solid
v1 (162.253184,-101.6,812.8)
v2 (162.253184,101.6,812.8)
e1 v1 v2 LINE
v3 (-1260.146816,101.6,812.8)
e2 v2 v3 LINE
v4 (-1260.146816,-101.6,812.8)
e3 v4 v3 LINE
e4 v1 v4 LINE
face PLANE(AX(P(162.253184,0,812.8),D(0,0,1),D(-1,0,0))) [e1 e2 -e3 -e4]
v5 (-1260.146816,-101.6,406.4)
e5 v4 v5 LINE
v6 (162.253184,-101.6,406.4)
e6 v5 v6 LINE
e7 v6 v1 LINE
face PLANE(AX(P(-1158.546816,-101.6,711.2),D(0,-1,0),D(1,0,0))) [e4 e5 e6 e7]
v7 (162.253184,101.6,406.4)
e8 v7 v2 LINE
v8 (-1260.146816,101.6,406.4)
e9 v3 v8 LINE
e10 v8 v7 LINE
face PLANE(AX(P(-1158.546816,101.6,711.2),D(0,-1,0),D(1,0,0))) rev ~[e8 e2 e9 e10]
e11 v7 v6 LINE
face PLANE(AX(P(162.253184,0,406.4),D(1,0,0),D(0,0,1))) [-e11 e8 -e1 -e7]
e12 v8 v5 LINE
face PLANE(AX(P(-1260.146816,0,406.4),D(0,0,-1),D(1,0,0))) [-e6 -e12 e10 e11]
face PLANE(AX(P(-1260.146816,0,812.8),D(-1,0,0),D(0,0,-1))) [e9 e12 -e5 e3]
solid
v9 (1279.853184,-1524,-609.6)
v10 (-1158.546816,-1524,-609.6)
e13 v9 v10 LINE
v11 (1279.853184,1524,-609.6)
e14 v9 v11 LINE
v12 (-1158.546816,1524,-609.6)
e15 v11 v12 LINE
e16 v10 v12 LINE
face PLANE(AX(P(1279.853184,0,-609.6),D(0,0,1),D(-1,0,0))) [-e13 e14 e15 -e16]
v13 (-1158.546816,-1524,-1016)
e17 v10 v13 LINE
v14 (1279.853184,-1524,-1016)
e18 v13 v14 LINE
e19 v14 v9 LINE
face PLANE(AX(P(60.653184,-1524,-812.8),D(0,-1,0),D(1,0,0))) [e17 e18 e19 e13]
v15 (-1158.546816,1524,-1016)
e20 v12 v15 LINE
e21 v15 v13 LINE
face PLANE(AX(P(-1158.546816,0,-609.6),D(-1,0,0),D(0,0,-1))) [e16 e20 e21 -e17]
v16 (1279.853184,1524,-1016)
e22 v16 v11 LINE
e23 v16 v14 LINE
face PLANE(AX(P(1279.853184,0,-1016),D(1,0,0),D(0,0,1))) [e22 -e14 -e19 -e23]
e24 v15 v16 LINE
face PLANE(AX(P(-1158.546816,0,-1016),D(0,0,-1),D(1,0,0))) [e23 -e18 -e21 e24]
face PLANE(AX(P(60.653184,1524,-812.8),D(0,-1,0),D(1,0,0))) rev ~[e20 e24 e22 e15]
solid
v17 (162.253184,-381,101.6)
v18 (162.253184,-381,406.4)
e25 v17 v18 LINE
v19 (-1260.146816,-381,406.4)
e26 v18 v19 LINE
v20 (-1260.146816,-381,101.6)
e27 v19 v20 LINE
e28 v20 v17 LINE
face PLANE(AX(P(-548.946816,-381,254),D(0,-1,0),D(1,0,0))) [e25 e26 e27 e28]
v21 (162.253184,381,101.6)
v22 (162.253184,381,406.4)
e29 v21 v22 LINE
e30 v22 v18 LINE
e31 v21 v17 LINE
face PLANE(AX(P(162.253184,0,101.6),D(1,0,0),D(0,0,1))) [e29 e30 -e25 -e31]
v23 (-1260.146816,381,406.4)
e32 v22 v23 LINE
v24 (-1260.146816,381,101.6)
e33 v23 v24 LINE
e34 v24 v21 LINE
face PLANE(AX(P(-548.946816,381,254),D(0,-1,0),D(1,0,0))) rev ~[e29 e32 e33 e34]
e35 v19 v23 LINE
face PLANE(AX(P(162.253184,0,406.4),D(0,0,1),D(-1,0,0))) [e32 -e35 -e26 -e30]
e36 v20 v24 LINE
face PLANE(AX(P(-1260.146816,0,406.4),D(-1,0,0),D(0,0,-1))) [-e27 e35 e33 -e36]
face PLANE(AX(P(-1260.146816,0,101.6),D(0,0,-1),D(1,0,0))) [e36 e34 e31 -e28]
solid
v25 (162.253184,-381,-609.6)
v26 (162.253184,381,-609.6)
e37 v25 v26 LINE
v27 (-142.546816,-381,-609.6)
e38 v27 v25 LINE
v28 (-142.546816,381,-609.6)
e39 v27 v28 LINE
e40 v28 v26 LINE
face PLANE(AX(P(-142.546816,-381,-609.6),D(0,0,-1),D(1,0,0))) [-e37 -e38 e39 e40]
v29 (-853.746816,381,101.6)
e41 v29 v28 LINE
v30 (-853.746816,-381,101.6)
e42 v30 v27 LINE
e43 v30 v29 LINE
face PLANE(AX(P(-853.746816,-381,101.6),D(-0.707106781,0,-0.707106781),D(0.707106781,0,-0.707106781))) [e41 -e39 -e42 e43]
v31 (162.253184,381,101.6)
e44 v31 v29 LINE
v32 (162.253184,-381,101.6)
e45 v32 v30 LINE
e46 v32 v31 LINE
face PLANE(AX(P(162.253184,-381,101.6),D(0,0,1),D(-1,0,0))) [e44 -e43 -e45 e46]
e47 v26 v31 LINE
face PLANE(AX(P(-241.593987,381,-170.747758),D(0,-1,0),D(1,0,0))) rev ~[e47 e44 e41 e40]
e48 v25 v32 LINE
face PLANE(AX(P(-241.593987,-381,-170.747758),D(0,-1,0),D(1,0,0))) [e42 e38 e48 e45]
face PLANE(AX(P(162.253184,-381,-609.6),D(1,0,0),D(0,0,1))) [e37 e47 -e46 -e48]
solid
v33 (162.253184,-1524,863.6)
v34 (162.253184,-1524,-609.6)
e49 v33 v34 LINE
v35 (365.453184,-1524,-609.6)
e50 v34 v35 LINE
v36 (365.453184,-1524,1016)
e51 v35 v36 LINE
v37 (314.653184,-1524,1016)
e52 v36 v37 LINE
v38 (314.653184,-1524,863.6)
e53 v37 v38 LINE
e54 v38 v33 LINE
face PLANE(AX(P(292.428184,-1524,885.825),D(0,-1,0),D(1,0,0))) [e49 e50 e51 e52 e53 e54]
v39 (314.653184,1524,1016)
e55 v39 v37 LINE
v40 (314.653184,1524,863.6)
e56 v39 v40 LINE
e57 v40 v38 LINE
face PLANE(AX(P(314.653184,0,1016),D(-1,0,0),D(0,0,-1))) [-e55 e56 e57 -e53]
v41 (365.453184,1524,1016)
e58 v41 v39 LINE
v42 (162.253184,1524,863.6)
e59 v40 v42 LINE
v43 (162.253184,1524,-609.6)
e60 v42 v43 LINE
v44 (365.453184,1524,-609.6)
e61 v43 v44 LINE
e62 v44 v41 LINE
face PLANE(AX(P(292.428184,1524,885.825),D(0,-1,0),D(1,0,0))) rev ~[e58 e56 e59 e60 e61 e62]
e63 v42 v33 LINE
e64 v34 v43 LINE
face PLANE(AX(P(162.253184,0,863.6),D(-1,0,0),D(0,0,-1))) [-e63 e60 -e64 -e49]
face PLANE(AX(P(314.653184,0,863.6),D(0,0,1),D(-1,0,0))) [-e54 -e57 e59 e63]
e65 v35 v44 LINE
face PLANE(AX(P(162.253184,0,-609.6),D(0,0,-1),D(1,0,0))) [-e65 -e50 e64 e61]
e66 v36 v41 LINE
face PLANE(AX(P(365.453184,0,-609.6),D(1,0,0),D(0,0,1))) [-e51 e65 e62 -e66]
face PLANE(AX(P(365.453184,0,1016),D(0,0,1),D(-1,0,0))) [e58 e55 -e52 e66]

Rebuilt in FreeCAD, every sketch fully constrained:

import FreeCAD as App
import Part
import Sketcher
Q = App.Units.Quantity


def add_polygon(sketch, points):
    """Adds a closed chain of lines whose ends are joined by coincident constraints."""
    first, n = sketch.GeometryCount, len(points)
    for a, b in zip(points, points[1:] + points[:1]):
        sketch.addGeometry(Part.LineSegment(App.Vector(*a, 0), App.Vector(*b, 0)), False)
    for i in range(n):
        sketch.addConstraint(Sketcher.Constraint("Coincident", first + i, 2, first + (i + 1) % n, 1))

doc = App.newDocument("Part")
body = doc.addObject("PartDesign::Body", "Body")

# Sketch on XZ plane
sketch1 = doc.addObject("Sketcher::SketchObject", "Sketch")
body.addObject(sketch1)
sketch1.AttachmentSupport = (doc.XZ_Plane, [""])
sketch1.MapMode = "FlatFace"
add_polygon(sketch1, [(-1260, 102), (162, 102), (162, 406), (-1260, 406)])  # lines 0-3
sketch1.addConstraint([
    Sketcher.Constraint("Horizontal", 0),
    Sketcher.Constraint("Vertical", 1),
    Sketcher.Constraint("Horizontal", 2),
    Sketcher.Constraint("Vertical", 3),
    Sketcher.Constraint("DistanceX", 0, 1, 0, 2, Q("56 in")),
    Sketcher.Constraint("DistanceY", 1, 1, 1, 2, Q("12 in")),
    Sketcher.Constraint("DistanceY", -1, 1, 0, 2, Q("4 in")),
    Sketcher.Constraint("DistanceX", -1, 1, 0, 2, 162.253184),
])
pad1 = doc.addObject("PartDesign::Pad", "Pad")
body.addObject(pad1)
pad1.Profile = sketch1
pad1.Length = Q("30 in")
pad1.Midplane = True
body2 = doc.addObject("PartDesign::Body", "Body001")

# Sketch on XZ plane
sketch2 = doc.addObject("Sketcher::SketchObject", "Sketch001")
body2.addObject(sketch2)
sketch2.AttachmentSupport = (doc.getObject("XZ_Plane001"), [""])
sketch2.MapMode = "FlatFace"
add_polygon(sketch2, [(-1260, 813), (-1260, 406), (162, 406), (162, 813)])  # lines 0-3
sketch2.addConstraint([
    Sketcher.Constraint("Vertical", 0),
    Sketcher.Constraint("Horizontal", 1),
    Sketcher.Constraint("Vertical", 2),
    Sketcher.Constraint("Horizontal", 3),
    Sketcher.Constraint("DistanceX", 1, 1, 1, 2, Q("56 in")),
    Sketcher.Constraint("DistanceY", 0, 2, 0, 1, Q("16 in")),
    Sketcher.Constraint("DistanceY", -1, 1, 0, 2, Q("16 in")),
    Sketcher.Constraint("DistanceX", 0, 2, -1, 1, 1260.146816),
])
pad2 = doc.addObject("PartDesign::Pad", "Pad001")
body2.addObject(pad2)
pad2.Profile = sketch2
pad2.Length = Q("8 in")
pad2.Midplane = True
body3 = doc.addObject("PartDesign::Body", "Body002")

# Sketch on XZ plane
sketch3 = doc.addObject("Sketcher::SketchObject", "Sketch002")
body3.addObject(sketch3)
sketch3.AttachmentSupport = (doc.getObject("XZ_Plane002"), [""])
sketch3.MapMode = "FlatFace"
sketch3.AttachmentOffset = App.Placement(App.Vector(0, 0, 15 * 25.4), App.Rotation())
add_polygon(sketch3, [(162, -610), (162, 102), (-854, 102), (-143, -610)])  # lines 0-3
sketch3.addConstraint([
    Sketcher.Constraint("Vertical", 0),
    Sketcher.Constraint("Horizontal", 1),
    Sketcher.Constraint("Horizontal", 3),
    Sketcher.Constraint("DistanceX", 1, 2, 1, 1, Q("40 in")),
    Sketcher.Constraint("DistanceX", 3, 1, 3, 2, Q("12 in")),
    Sketcher.Constraint("DistanceY", 0, 1, 0, 2, Q("28 in")),
    Sketcher.Constraint("DistanceY", -1, 1, 0, 2, Q("4 in")),
    Sketcher.Constraint("DistanceX", -1, 1, 0, 2, 162.253184),
])
pad3 = doc.addObject("PartDesign::Pad", "Pad002")
body3.addObject(pad3)
pad3.Profile = sketch3
pad3.Length = Q("30 in")
pad3.Reversed = True
body4 = doc.addObject("PartDesign::Body", "Body003")

# Sketch on XZ plane
sketch4 = doc.addObject("Sketcher::SketchObject", "Sketch003")
body4.addObject(sketch4)
sketch4.AttachmentSupport = (doc.getObject("XZ_Plane003"), [""])
sketch4.MapMode = "FlatFace"
add_polygon(sketch4, [(365, 1016), (315, 1016), (315, 864), (162, 864), (162, -610), (365, -610)])  # lines 0-5
sketch4.addConstraint([
    Sketcher.Constraint("Horizontal", 0),
    Sketcher.Constraint("Vertical", 1),
    Sketcher.Constraint("Horizontal", 2),
    Sketcher.Constraint("Vertical", 3),
    Sketcher.Constraint("Horizontal", 4),
    Sketcher.Constraint("Vertical", 5),
    Sketcher.Constraint("Equal", 2, 1),
    Sketcher.Constraint("DistanceX", 0, 2, 0, 1, Q("2 in")),
    Sketcher.Constraint("DistanceX", 2, 2, 2, 1, Q("6 in")),
    Sketcher.Constraint("DistanceY", 3, 2, 3, 1, Q("58 in")),
    Sketcher.Constraint("DistanceY", -1, 1, 0, 2, Q("40 in")),
    Sketcher.Constraint("DistanceX", -1, 1, 0, 2, 314.653184),
])
pad4 = doc.addObject("PartDesign::Pad", "Pad003")
body4.addObject(pad4)
pad4.Profile = sketch4
pad4.Length = Q("120 in")
pad4.Midplane = True
body5 = doc.addObject("PartDesign::Body", "Body004")

# Sketch on XZ plane
sketch5 = doc.addObject("Sketcher::SketchObject", "Sketch004")
body5.addObject(sketch5)
sketch5.AttachmentSupport = (doc.getObject("XZ_Plane004"), [""])
sketch5.MapMode = "FlatFace"
add_polygon(sketch5, [(-1159, -610), (-1159, -1016), (1280, -1016), (1280, -610)])  # lines 0-3
sketch5.addConstraint([
    Sketcher.Constraint("Vertical", 0),
    Sketcher.Constraint("Horizontal", 1),
    Sketcher.Constraint("Vertical", 2),
    Sketcher.Constraint("Horizontal", 3),
    Sketcher.Constraint("DistanceX", 1, 1, 1, 2, Q("96 in")),
    Sketcher.Constraint("DistanceY", 0, 2, 0, 1, Q("16 in")),
    Sketcher.Constraint("DistanceY", 0, 2, -1, 1, Q("40 in")),
    Sketcher.Constraint("DistanceX", 0, 2, -1, 1, 1158.546816),
])
pad5 = doc.addObject("PartDesign::Pad", "Pad004")
body5.addObject(pad5)
pad5.Profile = sketch5
pad5.Length = Q("120 in")
pad5.Midplane = True

doc.recompute()
